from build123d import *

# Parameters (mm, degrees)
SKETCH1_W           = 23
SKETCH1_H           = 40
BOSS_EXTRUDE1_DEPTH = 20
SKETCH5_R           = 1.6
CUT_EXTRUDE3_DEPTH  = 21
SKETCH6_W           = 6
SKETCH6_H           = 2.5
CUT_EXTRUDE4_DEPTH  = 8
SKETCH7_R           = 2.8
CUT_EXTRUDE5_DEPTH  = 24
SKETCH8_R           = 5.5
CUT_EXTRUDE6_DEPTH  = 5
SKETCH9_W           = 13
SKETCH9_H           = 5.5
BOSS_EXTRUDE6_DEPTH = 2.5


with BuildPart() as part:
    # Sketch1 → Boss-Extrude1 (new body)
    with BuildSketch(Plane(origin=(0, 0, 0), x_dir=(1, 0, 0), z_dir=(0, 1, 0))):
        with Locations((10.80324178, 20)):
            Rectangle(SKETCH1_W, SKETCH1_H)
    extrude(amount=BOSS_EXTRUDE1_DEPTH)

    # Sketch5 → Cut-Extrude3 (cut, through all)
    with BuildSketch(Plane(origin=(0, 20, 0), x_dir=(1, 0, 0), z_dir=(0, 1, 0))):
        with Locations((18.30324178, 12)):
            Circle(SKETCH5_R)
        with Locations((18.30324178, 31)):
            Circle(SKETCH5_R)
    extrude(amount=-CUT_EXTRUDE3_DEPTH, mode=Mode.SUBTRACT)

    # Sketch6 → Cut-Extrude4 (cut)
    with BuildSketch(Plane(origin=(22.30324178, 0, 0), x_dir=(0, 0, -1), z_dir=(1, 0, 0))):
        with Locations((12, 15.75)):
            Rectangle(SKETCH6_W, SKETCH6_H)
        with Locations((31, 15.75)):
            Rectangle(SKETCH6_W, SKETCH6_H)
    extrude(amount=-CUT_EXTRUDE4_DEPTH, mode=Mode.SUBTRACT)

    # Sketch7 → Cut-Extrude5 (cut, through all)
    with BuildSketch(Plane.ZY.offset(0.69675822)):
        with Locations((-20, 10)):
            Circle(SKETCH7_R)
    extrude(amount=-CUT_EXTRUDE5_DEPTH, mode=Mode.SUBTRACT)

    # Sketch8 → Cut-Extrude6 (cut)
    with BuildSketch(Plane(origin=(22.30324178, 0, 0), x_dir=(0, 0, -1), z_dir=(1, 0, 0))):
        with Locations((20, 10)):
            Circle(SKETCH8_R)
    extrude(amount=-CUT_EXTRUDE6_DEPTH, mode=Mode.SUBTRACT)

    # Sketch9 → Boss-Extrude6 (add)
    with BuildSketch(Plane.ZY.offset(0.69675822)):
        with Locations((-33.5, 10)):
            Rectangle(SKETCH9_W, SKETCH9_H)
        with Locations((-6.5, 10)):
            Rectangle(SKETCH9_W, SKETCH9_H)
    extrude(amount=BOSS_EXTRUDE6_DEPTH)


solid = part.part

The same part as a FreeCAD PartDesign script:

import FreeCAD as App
import Part
import Sketcher
from FreeCAD import Vector


def add_polygon(sketch, points):
    """Adds a closed chain of lines whose ends are joined by coincident constraints."""
    first, n = sketch.GeometryCount, len(points)
    for a, b in zip(points, points[1:] + points[:1]):
        sketch.addGeometry(Part.LineSegment(App.Vector(*a, 0), App.Vector(*b, 0)), False)
    for i in range(n):
        sketch.addConstraint(Sketcher.Constraint("Coincident", first + i, 2, first + (i + 1) % n, 1))

doc = App.newDocument("Part")
body = doc.addObject("PartDesign::Body", "Body")

# Sketch on XZ plane
sketch1 = body.newObject("Sketcher::SketchObject", "Sketch")
sketch1.AttachmentSupport = (doc.getObject("XZ_Plane"), [""])
sketch1.MapMode = "FlatFace"
add_polygon(sketch1, [(-1, -40), (-1, 0), (22, 0), (22, -40)])  # lines 0-3
sketch1.addConstraint([
    Sketcher.Constraint("Vertical", 0),
    Sketcher.Constraint("Horizontal", 1),
    Sketcher.Constraint("Vertical", 2),
    Sketcher.Constraint("Horizontal", 3),
    Sketcher.Constraint("PointOnObject", 0, 2, -1),
    Sketcher.Constraint("DistanceX", 1, 1, 1, 2, 23.0),
    Sketcher.Constraint("DistanceY", 0, 1, 0, 2, 40.0),
    Sketcher.Constraint("DistanceX", 0, 2, -1, 1, 0.696758),
])
pad1 = body.newObject("PartDesign::Pad", "Pad")
pad1.Profile = sketch1
pad1.Length = 20
pad1.Reversed = True

# Sketch on XZ plane
sketch2 = body.newObject("Sketcher::SketchObject", "Sketch001")
sketch2.AttachmentSupport = (doc.getObject("XZ_Plane"), [""])
sketch2.MapMode = "FlatFace"
sketch2.AttachmentOffset = App.Placement(Vector(0, 0, -20), App.Rotation())
sketch2.addGeometry([
    Part.Circle(Vector(18.3, -12, 0), Vector(0, 0, 1), 1.6),
    Part.Circle(Vector(18.3, -31, 0), Vector(0, 0, 1), 1.6),
], False)
sketch2.addConstraint([
    Sketcher.Constraint("Equal", 0, 1),
    Sketcher.Constraint("Vertical", 0, 3, 1, 3),
    Sketcher.Constraint("Diameter", 0, 3.2),
    Sketcher.Constraint("DistanceY", 0, 3, -1, 1, 12.0),
    Sketcher.Constraint("DistanceY", 1, 3, -1, 1, 31.0),
    Sketcher.Constraint("DistanceX", -1, 1, 0, 3, 18.303242),
])
pocket1 = body.newObject("PartDesign::Pocket", "Pocket")
pocket1.Profile = sketch2
pocket1.Type = "ThroughAll"
pocket1.Reversed = True

# Sketch on YZ plane
sketch3 = body.newObject("Sketcher::SketchObject", "Sketch002")
sketch3.AttachmentSupport = (doc.getObject("YZ_Plane"), [""])
sketch3.MapMode = "FlatFace"
sketch3.AttachmentOffset = App.Placement(Vector(0, 0, 22.303242), App.Rotation())
add_polygon(sketch3, [(17, -9), (14.5, -9), (14.5, -15), (17, -15)])  # lines 0-3
add_polygon(sketch3, [(17, -28), (14.5, -28), (14.5, -34), (17, -34)])  # lines 4-7
sketch3.addConstraint([
    Sketcher.Constraint("Horizontal", 0),
    Sketcher.Constraint("Vertical", 1),
    Sketcher.Constraint("Horizontal", 2),
    Sketcher.Constraint("Vertical", 3),
    Sketcher.Constraint("Horizontal", 4),
    Sketcher.Constraint("Vertical", 5),
    Sketcher.Constraint("Horizontal", 6),
    Sketcher.Constraint("Vertical", 7),
    Sketcher.Constraint("Vertical", 1, 2, 4, 2),
    Sketcher.Constraint("Vertical", 3, 2, 6, 2),
    Sketcher.Constraint("Equal", 3, 5),
    Sketcher.Constraint("DistanceY", 1, 2, 1, 1, 6.0),
    Sketcher.Constraint("DistanceX", 0, 2, 0, 1, 2.5),
    Sketcher.Constraint("DistanceY", 0, 2, -1, 1, 9.0),
    Sketcher.Constraint("DistanceX", -1, 1, 2, 2, 17.0),
    Sketcher.Constraint("DistanceY", 4, 2, -1, 1, 28.0),
])
pocket2 = body.newObject("PartDesign::Pocket", "Pocket001")
pocket2.Profile = sketch3
pocket2.Length = 8

# Sketch on YZ plane
sketch4 = body.newObject("Sketcher::SketchObject", "Sketch003")
sketch4.AttachmentSupport = (doc.getObject("YZ_Plane"), [""])
sketch4.MapMode = "FlatFace"
sketch4.AttachmentOffset = App.Placement(Vector(0, 0, -0.696758), App.Rotation())
sketch4.addGeometry(Part.Circle(Vector(10, -20, 0), Vector(0, 0, 1), 2.8), False)
sketch4.addConstraint([
    Sketcher.Constraint("Diameter", 0, 5.6),
    Sketcher.Constraint("DistanceX", -1, 1, 0, 3, 10.0),
    Sketcher.Constraint("DistanceY", 0, 3, -1, 1, 20.0),
])
pocket3 = body.newObject("PartDesign::Pocket", "Pocket002")
pocket3.Profile = sketch4
pocket3.Type = "ThroughAll"
pocket3.Reversed = True

# Sketch on YZ plane
sketch5 = body.newObject("Sketcher::SketchObject", "Sketch004")
sketch5.AttachmentSupport = (doc.getObject("YZ_Plane"), [""])
sketch5.MapMode = "FlatFace"
sketch5.AttachmentOffset = App.Placement(Vector(0, 0, 22.303242), App.Rotation())
sketch5.addGeometry(Part.Circle(Vector(10, -20, 0), Vector(0, 0, 1), 6), False)
sketch5.addConstraint([
    Sketcher.Constraint("Diameter", 0, 11.0),
    Sketcher.Constraint("DistanceX", -1, 1, 0, 3, 10.0),
    Sketcher.Constraint("DistanceY", 0, 3, -1, 1, 20.0),
])
pocket4 = body.newObject("PartDesign::Pocket", "Pocket003")
pocket4.Profile = sketch5
pocket4.Length = 5

# Sketch on YZ plane
sketch6 = body.newObject("Sketcher::SketchObject", "Sketch005")
sketch6.AttachmentSupport = (doc.getObject("YZ_Plane"), [""])
sketch6.MapMode = "FlatFace"
sketch6.AttachmentOffset = App.Placement(Vector(0, 0, -0.696758), App.Rotation())
add_polygon(sketch6, [(13, -40), (7, -40), (7, -27), (13, -27)])  # lines 0-3
add_polygon(sketch6, [(13, -13), (7, -13), (7, 0), (13, 0)])  # lines 4-7
sketch6.addConstraint([
    Sketcher.Constraint("Horizontal", 0),
    Sketcher.Constraint("Vertical", 1),
    Sketcher.Constraint("Horizontal", 2),
    Sketcher.Constraint("Vertical", 3),
    Sketcher.Constraint("Horizontal", 4),
    Sketcher.Constraint("Vertical", 5),
    Sketcher.Constraint("Horizontal", 6),
    Sketcher.Constraint("Vertical", 7),
    Sketcher.Constraint("PointOnObject", 5, 2, -1),
    Sketcher.Constraint("Vertical", 1, 2, 4, 2),
    Sketcher.Constraint("Vertical", 3, 2, 6, 2),
    Sketcher.Constraint("Equal", 3, 5),
    Sketcher.Constraint("DistanceY", 1, 1, 1, 2, 13.0),
    Sketcher.Constraint("DistanceX", 0, 2, 0, 1, 5.5),
    Sketcher.Constraint("DistanceY", 0, 2, -1, 1, 40.0),
    Sketcher.Constraint("DistanceX", -1, 1, 0, 2, 7.25),
])
pad2 = body.newObject("PartDesign::Pad", "Pad001")
pad2.Profile = sketch6
pad2.Length = 2.5
pad2.Reversed = True

doc.recompute()
